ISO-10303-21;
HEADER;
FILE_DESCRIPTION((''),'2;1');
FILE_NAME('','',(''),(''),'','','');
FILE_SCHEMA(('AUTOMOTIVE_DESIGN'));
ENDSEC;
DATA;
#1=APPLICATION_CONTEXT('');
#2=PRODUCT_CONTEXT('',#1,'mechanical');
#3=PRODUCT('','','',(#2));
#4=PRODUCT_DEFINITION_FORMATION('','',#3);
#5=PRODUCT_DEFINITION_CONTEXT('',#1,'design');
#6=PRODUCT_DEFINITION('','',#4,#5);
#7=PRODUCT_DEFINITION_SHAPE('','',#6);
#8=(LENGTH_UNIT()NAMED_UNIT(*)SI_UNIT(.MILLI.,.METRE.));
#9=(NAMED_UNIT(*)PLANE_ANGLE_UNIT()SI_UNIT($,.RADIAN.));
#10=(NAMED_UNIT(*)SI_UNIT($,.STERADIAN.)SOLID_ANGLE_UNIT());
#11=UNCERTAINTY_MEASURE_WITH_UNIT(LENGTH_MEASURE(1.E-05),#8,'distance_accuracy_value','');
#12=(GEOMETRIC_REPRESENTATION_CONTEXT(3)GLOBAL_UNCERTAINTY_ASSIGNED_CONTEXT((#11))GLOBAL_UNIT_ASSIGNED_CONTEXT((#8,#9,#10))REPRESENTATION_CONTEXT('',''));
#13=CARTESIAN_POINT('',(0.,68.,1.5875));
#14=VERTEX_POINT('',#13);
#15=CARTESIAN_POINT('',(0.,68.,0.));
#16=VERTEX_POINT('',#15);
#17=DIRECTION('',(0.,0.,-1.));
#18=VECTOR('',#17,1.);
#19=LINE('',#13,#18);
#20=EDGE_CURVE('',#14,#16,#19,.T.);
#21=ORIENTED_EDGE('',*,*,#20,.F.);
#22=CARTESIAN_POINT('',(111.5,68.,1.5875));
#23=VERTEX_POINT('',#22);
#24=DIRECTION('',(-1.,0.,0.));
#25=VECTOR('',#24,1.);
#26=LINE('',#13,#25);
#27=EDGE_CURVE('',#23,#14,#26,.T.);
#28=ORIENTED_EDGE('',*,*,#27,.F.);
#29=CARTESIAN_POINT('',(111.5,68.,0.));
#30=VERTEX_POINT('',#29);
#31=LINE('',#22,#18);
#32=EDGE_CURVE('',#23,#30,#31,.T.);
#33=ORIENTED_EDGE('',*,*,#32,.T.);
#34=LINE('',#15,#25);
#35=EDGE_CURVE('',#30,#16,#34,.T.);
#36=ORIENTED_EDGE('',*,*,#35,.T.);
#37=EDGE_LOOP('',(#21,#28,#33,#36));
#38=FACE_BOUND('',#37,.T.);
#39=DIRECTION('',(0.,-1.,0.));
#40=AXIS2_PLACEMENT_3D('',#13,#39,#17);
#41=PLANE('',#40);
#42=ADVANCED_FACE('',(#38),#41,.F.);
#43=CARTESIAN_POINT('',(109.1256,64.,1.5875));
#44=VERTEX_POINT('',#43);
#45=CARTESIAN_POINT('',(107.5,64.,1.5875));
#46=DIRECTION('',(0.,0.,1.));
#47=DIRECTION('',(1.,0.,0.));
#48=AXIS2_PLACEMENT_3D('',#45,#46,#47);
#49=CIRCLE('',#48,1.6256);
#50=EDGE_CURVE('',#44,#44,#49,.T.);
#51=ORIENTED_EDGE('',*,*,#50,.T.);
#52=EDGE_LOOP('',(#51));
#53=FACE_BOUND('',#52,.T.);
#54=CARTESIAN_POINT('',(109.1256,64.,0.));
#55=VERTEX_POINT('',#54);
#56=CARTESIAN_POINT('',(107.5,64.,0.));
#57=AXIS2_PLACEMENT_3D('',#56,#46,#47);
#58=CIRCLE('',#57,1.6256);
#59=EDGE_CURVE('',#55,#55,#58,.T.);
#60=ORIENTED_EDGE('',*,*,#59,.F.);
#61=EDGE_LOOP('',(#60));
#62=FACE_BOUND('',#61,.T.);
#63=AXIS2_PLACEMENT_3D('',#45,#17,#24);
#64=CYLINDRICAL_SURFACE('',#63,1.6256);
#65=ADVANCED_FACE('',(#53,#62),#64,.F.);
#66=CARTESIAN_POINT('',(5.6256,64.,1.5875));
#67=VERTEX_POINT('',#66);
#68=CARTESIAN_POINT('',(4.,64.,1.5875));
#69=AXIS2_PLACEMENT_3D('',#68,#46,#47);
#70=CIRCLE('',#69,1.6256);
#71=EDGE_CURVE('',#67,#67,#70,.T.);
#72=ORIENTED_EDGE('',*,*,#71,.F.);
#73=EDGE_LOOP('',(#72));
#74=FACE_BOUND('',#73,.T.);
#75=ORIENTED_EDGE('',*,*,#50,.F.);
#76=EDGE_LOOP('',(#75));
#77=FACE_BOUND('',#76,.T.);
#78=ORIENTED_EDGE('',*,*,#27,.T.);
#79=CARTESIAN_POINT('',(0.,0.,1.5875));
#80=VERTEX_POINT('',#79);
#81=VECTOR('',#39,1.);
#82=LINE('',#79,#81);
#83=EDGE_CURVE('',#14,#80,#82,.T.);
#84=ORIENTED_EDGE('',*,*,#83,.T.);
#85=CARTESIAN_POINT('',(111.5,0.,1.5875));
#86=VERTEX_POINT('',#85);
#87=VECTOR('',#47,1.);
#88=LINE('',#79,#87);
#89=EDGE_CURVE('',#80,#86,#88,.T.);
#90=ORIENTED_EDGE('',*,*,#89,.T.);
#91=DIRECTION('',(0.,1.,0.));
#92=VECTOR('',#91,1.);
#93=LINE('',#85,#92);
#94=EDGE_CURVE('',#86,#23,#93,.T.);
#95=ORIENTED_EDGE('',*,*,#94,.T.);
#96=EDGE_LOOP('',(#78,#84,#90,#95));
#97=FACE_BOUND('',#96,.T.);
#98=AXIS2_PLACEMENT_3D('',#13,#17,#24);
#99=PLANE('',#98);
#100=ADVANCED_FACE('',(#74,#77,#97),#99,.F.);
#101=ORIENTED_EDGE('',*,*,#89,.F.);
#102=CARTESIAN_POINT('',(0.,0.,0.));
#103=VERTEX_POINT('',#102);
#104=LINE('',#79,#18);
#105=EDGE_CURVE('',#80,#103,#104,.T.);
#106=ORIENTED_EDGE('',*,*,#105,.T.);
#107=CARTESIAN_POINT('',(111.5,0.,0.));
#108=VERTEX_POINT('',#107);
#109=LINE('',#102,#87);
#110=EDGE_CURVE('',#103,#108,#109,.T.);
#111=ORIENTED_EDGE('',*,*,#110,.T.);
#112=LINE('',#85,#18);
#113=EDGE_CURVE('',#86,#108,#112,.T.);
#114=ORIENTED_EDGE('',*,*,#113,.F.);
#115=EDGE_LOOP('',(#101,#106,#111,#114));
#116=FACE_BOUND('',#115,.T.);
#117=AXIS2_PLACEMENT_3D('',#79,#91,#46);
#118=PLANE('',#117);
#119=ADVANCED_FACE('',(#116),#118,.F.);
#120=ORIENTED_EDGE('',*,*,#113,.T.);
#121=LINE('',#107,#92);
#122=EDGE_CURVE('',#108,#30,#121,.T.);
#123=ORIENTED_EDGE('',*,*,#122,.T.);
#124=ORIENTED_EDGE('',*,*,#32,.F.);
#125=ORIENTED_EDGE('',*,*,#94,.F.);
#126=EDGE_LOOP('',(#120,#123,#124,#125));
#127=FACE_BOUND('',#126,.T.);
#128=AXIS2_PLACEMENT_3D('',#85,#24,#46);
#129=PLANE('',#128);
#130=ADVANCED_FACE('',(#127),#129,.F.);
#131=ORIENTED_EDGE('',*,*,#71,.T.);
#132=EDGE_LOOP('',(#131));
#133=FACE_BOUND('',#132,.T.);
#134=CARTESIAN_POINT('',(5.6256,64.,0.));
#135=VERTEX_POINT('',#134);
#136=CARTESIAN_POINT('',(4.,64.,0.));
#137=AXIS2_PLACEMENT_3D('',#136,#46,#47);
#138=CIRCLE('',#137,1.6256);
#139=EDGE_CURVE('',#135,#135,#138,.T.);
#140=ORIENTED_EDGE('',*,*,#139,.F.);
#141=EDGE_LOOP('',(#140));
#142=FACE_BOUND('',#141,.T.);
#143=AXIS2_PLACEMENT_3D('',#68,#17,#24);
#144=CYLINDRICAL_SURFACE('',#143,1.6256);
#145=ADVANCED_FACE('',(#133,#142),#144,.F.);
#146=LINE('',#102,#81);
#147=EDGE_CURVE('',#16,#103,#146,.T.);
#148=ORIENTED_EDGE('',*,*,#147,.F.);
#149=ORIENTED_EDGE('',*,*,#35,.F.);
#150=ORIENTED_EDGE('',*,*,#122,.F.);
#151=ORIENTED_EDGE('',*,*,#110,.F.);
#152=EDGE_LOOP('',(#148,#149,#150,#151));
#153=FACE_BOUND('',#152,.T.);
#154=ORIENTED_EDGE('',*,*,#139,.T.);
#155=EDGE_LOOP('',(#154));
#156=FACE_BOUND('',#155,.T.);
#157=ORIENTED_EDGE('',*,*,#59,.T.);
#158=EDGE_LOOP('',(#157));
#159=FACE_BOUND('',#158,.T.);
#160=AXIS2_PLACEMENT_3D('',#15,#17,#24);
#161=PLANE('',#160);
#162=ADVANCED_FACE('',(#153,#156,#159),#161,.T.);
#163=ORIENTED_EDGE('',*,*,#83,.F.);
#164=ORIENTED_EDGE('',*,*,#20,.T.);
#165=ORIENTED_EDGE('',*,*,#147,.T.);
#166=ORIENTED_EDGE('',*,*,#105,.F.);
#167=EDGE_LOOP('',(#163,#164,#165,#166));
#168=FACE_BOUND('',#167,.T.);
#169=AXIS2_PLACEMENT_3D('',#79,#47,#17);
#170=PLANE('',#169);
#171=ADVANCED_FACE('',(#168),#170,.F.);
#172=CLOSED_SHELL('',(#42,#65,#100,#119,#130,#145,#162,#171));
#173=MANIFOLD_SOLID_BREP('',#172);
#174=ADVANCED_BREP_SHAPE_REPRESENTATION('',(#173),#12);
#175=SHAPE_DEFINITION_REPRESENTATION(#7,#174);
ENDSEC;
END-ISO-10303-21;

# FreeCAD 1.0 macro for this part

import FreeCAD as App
import Part
import Sketcher

V = App.Vector
Q = App.Units.Quantity

doc = App.newDocument("Part")
body = doc.addObject("PartDesign::Body", "Body")

# Sketch on XY plane
sketch1 = body.newObject("Sketcher::SketchObject", "Sketch")
sketch1.AttachmentSupport = (doc.getObject("XY_Plane"), [""])
sketch1.MapMode = "FlatFace"
sketch1.addGeometry([
    Part.LineSegment(V(0, 68, 0), V(0, 0, 0)),  # 0
    Part.LineSegment(V(0, 0, 0), V(111.5, 0, 0)),  # 1
    Part.LineSegment(V(111.5, 0, 0), V(111.5, 68, 0)),  # 2
    Part.LineSegment(V(111.5, 68, 0), V(0, 68, 0)),  # 3
    Part.Circle(V(4, 64, 0), V(0, 0, 1), 1.6256),  # 4
    Part.Circle(V(107.5, 64, 0), V(0, 0, 1), 1.6256),  # 5
], False)
sketch1.addConstraint([
    Sketcher.Constraint("Coincident", 0, 2, 1, 1),
    Sketcher.Constraint("Coincident", 1, 2, 2, 1),
    Sketcher.Constraint("Coincident", 2, 2, 3, 1),
    Sketcher.Constraint("Coincident", 3, 2, 0, 1),
    Sketcher.Constraint("Vertical", 0),
    Sketcher.Constraint("Horizontal", 1),
    Sketcher.Constraint("Vertical", 2),
    Sketcher.Constraint("Horizontal", 3),
    Sketcher.Constraint("Coincident", 0, 2, -1, 1),
    Sketcher.Constraint("Equal", 4, 5),
    Sketcher.Constraint("Horizontal", 4, 3, 5, 3),
    Sketcher.Constraint("DistanceY", 0, 2, 0, 1, Q("68 mm")),
    Sketcher.Constraint("DistanceX", 1, 1, 1, 2, Q("111.5 mm")),
    Sketcher.Constraint("DistanceX", -1, 1, 4, 3, Q("4 mm")),
    Sketcher.Constraint("DistanceY", -1, 1, 4, 3, Q("64 mm")),
    Sketcher.Constraint("DistanceX", 5, 3, 1, 2, Q("4 mm")),
    Sketcher.Constraint("Diameter", 4, Q("3.2512 mm")),
])
pad1 = body.newObject("PartDesign::Pad", "Pad")
pad1.Profile = sketch1
pad1.Length = 1.5875

doc.recompute()
